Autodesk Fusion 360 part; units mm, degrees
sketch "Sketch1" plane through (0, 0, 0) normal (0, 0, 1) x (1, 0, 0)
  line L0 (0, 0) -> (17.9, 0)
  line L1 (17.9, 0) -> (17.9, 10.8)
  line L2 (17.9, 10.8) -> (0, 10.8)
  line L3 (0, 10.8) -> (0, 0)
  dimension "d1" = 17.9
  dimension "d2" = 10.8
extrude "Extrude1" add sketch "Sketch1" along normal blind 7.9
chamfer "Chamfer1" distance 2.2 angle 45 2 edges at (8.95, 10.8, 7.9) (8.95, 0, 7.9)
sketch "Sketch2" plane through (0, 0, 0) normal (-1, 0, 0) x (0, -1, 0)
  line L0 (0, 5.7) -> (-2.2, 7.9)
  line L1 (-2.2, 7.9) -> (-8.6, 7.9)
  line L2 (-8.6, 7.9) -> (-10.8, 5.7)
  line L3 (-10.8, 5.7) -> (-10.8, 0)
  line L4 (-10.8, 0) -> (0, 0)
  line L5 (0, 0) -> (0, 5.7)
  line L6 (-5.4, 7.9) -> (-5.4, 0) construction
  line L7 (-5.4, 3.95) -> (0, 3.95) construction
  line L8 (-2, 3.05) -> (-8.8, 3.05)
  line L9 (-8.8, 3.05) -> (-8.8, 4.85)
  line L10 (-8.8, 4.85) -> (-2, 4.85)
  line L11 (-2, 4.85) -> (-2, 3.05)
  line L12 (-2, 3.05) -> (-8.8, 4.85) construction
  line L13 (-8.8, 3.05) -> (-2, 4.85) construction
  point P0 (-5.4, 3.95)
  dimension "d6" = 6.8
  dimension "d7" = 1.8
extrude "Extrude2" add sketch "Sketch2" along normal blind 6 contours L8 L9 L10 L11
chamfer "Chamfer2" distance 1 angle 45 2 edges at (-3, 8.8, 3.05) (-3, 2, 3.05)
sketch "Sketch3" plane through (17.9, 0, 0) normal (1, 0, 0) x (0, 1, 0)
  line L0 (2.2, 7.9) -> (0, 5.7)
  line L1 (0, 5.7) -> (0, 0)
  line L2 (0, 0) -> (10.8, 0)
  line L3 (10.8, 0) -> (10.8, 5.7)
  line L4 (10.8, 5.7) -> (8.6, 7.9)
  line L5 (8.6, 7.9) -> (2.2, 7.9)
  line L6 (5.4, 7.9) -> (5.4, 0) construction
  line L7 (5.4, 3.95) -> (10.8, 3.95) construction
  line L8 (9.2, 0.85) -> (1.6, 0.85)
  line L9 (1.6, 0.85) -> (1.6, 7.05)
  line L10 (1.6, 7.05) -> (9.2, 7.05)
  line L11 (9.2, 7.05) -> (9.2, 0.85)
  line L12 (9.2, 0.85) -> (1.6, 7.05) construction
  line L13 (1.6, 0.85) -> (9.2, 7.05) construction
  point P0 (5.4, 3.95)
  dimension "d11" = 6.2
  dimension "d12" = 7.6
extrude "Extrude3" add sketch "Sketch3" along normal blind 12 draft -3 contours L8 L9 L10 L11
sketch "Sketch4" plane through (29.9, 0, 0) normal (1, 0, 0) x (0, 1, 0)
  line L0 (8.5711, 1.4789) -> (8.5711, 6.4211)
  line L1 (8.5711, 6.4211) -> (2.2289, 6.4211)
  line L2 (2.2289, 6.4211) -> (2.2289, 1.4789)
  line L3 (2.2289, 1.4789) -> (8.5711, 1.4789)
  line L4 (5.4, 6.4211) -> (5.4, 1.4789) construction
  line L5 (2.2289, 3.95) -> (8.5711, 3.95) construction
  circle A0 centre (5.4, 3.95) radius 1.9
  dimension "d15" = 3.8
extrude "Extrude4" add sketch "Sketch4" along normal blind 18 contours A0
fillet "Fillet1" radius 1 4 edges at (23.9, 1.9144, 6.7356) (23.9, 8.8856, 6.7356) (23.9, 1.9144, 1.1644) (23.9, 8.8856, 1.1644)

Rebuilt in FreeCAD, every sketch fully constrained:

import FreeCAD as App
import Part
import Sketcher

V = App.Vector


def edges_at(feature, points):
    """Names of the edges that pass closest to the given points."""
    edges = feature.Shape.Edges
    near = lambda p: min(range(len(edges)), key=lambda i: edges[i].distToShape(Part.Vertex(*p))[0])
    return sorted({f"Edge{near(p) + 1}" for p in points})


def add_polygon(sketch, points):
    """Adds a closed chain of lines whose ends are joined by coincident constraints."""
    first, n = sketch.GeometryCount, len(points)
    for a, b in zip(points, points[1:] + points[:1]):
        sketch.addGeometry(Part.LineSegment(App.Vector(*a, 0), App.Vector(*b, 0)), False)
    for i in range(n):
        sketch.addConstraint(Sketcher.Constraint("Coincident", first + i, 2, first + (i + 1) % n, 1))

doc = App.newDocument("Part")
body = doc.addObject("PartDesign::Body", "Body")

# Sketch on XY plane
sketch1 = body.newObject("Sketcher::SketchObject", "Sketch")
sketch1.AttachmentSupport = (doc.getObject("XY_Plane"), [""])
sketch1.MapMode = "FlatFace"
add_polygon(sketch1, [(0, 11), (0, 0), (18, 0), (18, 11)])  # lines 0-3
sketch1.addConstraint(Sketcher.Constraint("Vertical", 0))
sketch1.addConstraint(Sketcher.Constraint("Horizontal", 1))
sketch1.addConstraint(Sketcher.Constraint("Vertical", 2))
sketch1.addConstraint(Sketcher.Constraint("Horizontal", 3))
sketch1.addConstraint(Sketcher.Constraint("Coincident", 0, 2, -1, 1))
sketch1.addConstraint(Sketcher.Constraint("DistanceX", 1, 1, 1, 2, 17.9))
sketch1.addConstraint(Sketcher.Constraint("DistanceY", 0, 2, 0, 1, 10.8))
pad1 = body.newObject("PartDesign::Pad", "Pad")
pad1.Profile = sketch1
pad1.Length = 7.9
doc.recompute()

chamfer = body.newObject("PartDesign::Chamfer", "Chamfer")
chamfer.Base = (pad1, edges_at(pad1, [(8.95, 10.8, 7.9), (8.95, 0, 7.9)]))
chamfer.Size = 2.2

# Sketch on YZ plane
sketch2 = body.newObject("Sketcher::SketchObject", "Sketch001")
sketch2.AttachmentSupport = (doc.getObject("YZ_Plane"), [""])
sketch2.MapMode = "FlatFace"
add_polygon(sketch2, [(8.8, 3), (2, 3), (2, 4.8), (8.8, 4.8)])  # lines 0-3
sketch2.addConstraint(Sketcher.Constraint("Horizontal", 0))
sketch2.addConstraint(Sketcher.Constraint("Vertical", 1))
sketch2.addConstraint(Sketcher.Constraint("Horizontal", 2))
sketch2.addConstraint(Sketcher.Constraint("Vertical", 3))
sketch2.addConstraint(Sketcher.Constraint("DistanceX", 0, 2, 0, 1, 6.8))
sketch2.addConstraint(Sketcher.Constraint("DistanceY", 1, 1, 1, 2, 1.8))
sketch2.addConstraint(Sketcher.Constraint("DistanceX", -1, 1, 0, 2, 2.0))
sketch2.addConstraint(Sketcher.Constraint("DistanceY", -1, 1, 0, 2, 3.05))
pad2 = body.newObject("PartDesign::Pad", "Pad001")
pad2.Profile = sketch2
pad2.Length = 6
pad2.Reversed = True
doc.recompute()

chamfer2 = body.newObject("PartDesign::Chamfer", "Chamfer001")
chamfer2.Base = (pad2, edges_at(pad2, [(-3, 8.8, 3.05), (-3, 2, 3.05)]))
chamfer2.Size = 1

# Sketch on YZ plane
sketch3 = body.newObject("Sketcher::SketchObject", "Sketch002")
sketch3.AttachmentSupport = (doc.getObject("YZ_Plane"), [""])
sketch3.MapMode = "FlatFace"
sketch3.AttachmentOffset = App.Placement(V(0, 0, 17.9), App.Rotation())
add_polygon(sketch3, [(2, 1), (9, 1), (9, 7), (2, 7)])  # lines 0-3
sketch3.addConstraint(Sketcher.Constraint("Horizontal", 0))
sketch3.addConstraint(Sketcher.Constraint("Vertical", 1))
sketch3.addConstraint(Sketcher.Constraint("Horizontal", 2))
sketch3.addConstraint(Sketcher.Constraint("Vertical", 3))
sketch3.addConstraint(Sketcher.Constraint("DistanceX", 0, 1, 0, 2, 7.6))
sketch3.addConstraint(Sketcher.Constraint("DistanceY", 1, 1, 1, 2, 6.2))
sketch3.addConstraint(Sketcher.Constraint("DistanceX", -1, 1, 0, 2, 9.2))
sketch3.addConstraint(Sketcher.Constraint("DistanceY", -1, 1, 0, 2, 0.85))
pad3 = body.newObject("PartDesign::Pad", "Pad002")
pad3.Profile = sketch3
pad3.Length = 12
pad3.TaperAngle = -3

# Sketch on YZ plane
sketch4 = body.newObject("Sketcher::SketchObject", "Sketch003")
sketch4.AttachmentSupport = (doc.getObject("YZ_Plane"), [""])
sketch4.MapMode = "FlatFace"
sketch4.AttachmentOffset = App.Placement(V(0, 0, 29.9), App.Rotation())
sketch4.addGeometry(Part.Circle(V(5.4, 4, 0), V(0, 0, 1), 1.9), False)
sketch4.addConstraint(Sketcher.Constraint("Diameter", 0, 3.8))
sketch4.addConstraint(Sketcher.Constraint("DistanceX", -1, 1, 0, 3, 5.4))
sketch4.addConstraint(Sketcher.Constraint("DistanceY", -1, 1, 0, 3, 3.95))
pad4 = body.newObject("PartDesign::Pad", "Pad003")
pad4.Profile = sketch4
pad4.Length = 18
doc.recompute()

fillet = body.newObject("PartDesign::Fillet", "Fillet")
fillet.Base = (pad4, edges_at(pad4, [
    (23.9, 1.914, 6.736),
    (23.9, 8.886, 6.736),
    (23.9, 1.914, 1.164),
    (23.9, 8.886, 1.164),
]))
fillet.Radius = 1

doc.recompute()
